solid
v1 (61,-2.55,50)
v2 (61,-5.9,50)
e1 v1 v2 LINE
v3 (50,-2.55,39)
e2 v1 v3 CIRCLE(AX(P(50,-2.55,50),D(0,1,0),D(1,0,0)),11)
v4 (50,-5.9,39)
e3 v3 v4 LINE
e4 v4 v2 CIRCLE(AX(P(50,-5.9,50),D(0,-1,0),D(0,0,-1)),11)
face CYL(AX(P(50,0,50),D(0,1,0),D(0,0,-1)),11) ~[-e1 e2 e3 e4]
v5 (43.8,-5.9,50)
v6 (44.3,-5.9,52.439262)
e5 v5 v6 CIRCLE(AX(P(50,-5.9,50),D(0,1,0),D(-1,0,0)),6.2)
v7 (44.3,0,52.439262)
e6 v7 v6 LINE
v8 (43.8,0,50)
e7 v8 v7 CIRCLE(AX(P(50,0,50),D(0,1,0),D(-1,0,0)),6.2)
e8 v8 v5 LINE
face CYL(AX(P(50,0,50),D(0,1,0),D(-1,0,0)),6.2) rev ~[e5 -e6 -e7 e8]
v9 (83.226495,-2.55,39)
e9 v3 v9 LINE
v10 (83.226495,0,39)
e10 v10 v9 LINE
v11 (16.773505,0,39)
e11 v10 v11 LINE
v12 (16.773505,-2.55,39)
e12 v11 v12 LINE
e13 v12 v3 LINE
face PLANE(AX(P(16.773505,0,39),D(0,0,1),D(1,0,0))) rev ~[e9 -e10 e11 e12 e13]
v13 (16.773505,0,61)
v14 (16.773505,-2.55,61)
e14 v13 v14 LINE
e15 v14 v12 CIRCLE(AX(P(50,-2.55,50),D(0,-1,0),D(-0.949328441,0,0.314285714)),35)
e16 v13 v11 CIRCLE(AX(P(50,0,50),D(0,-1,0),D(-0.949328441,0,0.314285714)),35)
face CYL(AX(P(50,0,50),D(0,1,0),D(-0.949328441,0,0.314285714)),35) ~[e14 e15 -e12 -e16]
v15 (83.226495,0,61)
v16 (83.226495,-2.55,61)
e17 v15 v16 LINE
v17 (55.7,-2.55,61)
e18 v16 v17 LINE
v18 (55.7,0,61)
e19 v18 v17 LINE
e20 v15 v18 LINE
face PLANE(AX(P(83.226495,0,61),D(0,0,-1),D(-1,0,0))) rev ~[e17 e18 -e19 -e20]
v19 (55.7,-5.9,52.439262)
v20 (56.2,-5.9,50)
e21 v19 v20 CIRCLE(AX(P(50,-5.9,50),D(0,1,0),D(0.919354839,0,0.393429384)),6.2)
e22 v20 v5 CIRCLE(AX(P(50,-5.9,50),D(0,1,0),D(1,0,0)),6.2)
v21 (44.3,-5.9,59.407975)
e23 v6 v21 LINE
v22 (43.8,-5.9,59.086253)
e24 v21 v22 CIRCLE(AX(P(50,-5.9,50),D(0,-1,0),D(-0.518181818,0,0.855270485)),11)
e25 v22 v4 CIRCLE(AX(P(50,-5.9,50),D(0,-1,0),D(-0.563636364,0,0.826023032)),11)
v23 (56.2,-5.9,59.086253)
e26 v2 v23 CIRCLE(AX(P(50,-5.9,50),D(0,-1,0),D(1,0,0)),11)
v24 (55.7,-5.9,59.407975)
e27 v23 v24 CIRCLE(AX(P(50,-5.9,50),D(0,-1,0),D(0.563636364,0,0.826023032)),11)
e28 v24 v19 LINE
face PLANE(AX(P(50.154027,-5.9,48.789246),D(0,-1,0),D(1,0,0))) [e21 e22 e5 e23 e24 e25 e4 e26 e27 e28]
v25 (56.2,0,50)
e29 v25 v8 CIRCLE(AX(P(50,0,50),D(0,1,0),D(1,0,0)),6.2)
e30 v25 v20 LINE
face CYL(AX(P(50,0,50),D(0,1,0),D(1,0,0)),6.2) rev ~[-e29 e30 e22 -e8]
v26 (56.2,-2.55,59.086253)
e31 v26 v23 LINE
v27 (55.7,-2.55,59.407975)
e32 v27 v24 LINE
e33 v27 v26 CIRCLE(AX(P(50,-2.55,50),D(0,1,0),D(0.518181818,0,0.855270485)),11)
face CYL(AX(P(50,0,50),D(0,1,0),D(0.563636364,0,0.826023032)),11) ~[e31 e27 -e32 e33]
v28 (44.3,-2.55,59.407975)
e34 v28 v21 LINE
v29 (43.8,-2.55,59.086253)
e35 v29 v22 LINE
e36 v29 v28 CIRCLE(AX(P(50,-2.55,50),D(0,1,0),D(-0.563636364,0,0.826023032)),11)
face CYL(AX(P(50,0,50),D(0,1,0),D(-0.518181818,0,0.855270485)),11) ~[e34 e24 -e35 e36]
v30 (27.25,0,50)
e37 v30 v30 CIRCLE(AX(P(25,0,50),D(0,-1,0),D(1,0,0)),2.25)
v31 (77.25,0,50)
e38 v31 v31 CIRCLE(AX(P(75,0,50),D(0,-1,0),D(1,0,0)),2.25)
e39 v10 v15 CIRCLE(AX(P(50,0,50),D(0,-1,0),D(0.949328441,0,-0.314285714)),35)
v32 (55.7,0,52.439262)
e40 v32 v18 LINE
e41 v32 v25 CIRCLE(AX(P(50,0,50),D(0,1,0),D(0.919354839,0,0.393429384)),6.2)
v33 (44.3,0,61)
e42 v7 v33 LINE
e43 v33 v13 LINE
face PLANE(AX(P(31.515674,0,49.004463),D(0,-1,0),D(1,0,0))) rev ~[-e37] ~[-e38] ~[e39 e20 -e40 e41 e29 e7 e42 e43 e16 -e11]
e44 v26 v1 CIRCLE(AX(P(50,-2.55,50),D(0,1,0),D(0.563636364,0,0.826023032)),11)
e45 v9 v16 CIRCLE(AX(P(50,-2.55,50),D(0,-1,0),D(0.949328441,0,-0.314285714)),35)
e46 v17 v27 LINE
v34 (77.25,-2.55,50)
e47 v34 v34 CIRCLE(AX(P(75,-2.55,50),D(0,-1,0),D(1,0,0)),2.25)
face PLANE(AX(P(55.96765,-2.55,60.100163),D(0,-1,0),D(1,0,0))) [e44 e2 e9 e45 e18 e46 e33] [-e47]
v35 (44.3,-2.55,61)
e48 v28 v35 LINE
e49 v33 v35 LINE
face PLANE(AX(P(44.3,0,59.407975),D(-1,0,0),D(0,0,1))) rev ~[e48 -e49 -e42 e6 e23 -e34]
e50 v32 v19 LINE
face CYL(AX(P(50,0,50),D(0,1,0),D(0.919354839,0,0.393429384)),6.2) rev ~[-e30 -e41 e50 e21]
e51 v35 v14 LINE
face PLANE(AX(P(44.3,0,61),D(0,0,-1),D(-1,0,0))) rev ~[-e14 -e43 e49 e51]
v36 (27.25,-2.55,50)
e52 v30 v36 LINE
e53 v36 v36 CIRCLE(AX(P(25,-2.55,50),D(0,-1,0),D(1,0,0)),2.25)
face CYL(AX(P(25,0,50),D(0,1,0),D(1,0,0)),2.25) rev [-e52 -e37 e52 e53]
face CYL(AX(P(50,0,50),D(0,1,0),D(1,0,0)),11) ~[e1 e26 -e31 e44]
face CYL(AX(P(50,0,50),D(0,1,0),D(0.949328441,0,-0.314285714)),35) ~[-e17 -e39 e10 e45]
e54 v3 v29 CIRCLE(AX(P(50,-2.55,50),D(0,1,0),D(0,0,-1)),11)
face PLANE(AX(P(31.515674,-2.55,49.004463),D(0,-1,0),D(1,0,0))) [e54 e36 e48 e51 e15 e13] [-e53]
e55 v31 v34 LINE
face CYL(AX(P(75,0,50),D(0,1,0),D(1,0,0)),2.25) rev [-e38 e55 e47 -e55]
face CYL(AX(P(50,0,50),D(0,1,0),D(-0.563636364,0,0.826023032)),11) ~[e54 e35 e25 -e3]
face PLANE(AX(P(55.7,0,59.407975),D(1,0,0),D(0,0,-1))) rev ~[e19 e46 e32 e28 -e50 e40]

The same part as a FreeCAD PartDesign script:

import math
import FreeCAD as App
import Part
import Sketcher

V = App.Vector
Q = App.Units.Quantity

doc = App.newDocument("Part")
body = doc.addObject("PartDesign::Body", "Body")

# Sketch on XZ plane
sketch1 = doc.addObject("Sketcher::SketchObject", "Sketch")
body.addObject(sketch1)
sketch1.AttachmentSupport = (doc.XZ_Plane, [""])
sketch1.MapMode = "FlatFace"
sketch1.addGeometry([
    Part.ArcOfCircle(Part.Circle(V(50, 50, 0), V(0, 0, 1), 6.2), math.radians(180), math.radians(360)),  # 0
    Part.ArcOfCircle(Part.Circle(V(50, 50, 0), V(0, 0, 1), 6.2), math.radians(157), math.radians(180)),  # 1
    Part.LineSegment(V(44.3, 52.4, 0), V(44.3, 59.4, 0)),  # 2
    Part.ArcOfCircle(Part.Circle(V(50, 50, 0), V(0, 0, 1), 11), math.radians(121.21), math.radians(124.31)),  # 3
    Part.ArcOfCircle(Part.Circle(V(50, 50, 0), V(0, 0, 1), 11), math.radians(124), math.radians(270)),  # 4
    Part.ArcOfCircle(Part.Circle(V(50, 50, 0), V(0, 0, 1), 11), math.radians(-90), math.radians(0)),  # 5
    Part.ArcOfCircle(Part.Circle(V(50, 50, 0), V(0, 0, 1), 11), math.radians(0), math.radians(56)),  # 6
    Part.ArcOfCircle(Part.Circle(V(50, 50, 0), V(0, 0, 1), 11), math.radians(55.69), math.radians(58.79)),  # 7
    Part.LineSegment(V(55.7, 59.4, 0), V(55.7, 52.4, 0)),  # 8
    Part.ArcOfCircle(Part.Circle(V(50, 50, 0), V(0, 0, 1), 6.2), math.radians(0), math.radians(23)),  # 9
], False)
sketch1.addConstraint([
    Sketcher.Constraint("Tangent", 0, 1, 1, 2),
    Sketcher.Constraint("Coincident", 1, 1, 2, 1),
    Sketcher.Constraint("Coincident", 2, 2, 3, 1),
    Sketcher.Constraint("Tangent", 3, 2, 4, 1),
    Sketcher.Constraint("Tangent", 4, 2, 5, 1),
    Sketcher.Constraint("Tangent", 5, 2, 6, 1),
    Sketcher.Constraint("Tangent", 6, 2, 7, 1),
    Sketcher.Constraint("Coincident", 7, 2, 8, 1),
    Sketcher.Constraint("Coincident", 8, 2, 9, 2),
    Sketcher.Constraint("Tangent", 9, 1, 0, 2),
    Sketcher.Constraint("Vertical", 2),
    Sketcher.Constraint("Vertical", 8),
    Sketcher.Constraint("Coincident", 3, 3, 0, 3),
    Sketcher.Constraint("Coincident", 5, 3, 0, 3),
    Sketcher.Constraint("Coincident", 7, 3, 0, 3),
    Sketcher.Constraint("Equal", 0, 1),
    Sketcher.Constraint("Equal", 1, 9),
    Sketcher.Constraint("Horizontal", 9, 3, 0, 1),
    Sketcher.Constraint("Horizontal", 0, 1, 5, 2),
    Sketcher.Constraint("Horizontal", 3, 2, 6, 2),
    Sketcher.Constraint("Horizontal", 2, 2, 7, 2),
    Sketcher.Constraint("Horizontal", 5, 2, 9, 1),
    Sketcher.Constraint("Vertical", 0, 1, 3, 2),
    Sketcher.Constraint("Vertical", 9, 3, 4, 2),
    Sketcher.Constraint("Radius", 3, Q("11 mm")),
    Sketcher.Constraint("Radius", 0, Q("6.2 mm")),
    Sketcher.Constraint("DistanceX", -1, 1, 0, 3, Q("50 mm")),
    Sketcher.Constraint("DistanceY", -1, 1, 0, 3, Q("50 mm")),
    Sketcher.Constraint("DistanceX", -1, 1, 1, 1, Q("44.3 mm")),
])
pad1 = doc.addObject("PartDesign::Pad", "Pad")
body.addObject(pad1)
pad1.Profile = sketch1
pad1.Length = 5.9

# Sketch on XZ plane
sketch2 = doc.addObject("Sketcher::SketchObject", "Sketch001")
body.addObject(sketch2)
sketch2.AttachmentSupport = (doc.XZ_Plane, [""])
sketch2.MapMode = "FlatFace"
sketch2.addGeometry([
    Part.ArcOfCircle(Part.Circle(V(50, 50, 0), V(0, 0, 1), 11), math.radians(124), math.radians(270)),  # 0
    Part.ArcOfCircle(Part.Circle(V(50, 50, 0), V(0, 0, 1), 11), math.radians(121.21), math.radians(124.31)),  # 1
    Part.LineSegment(V(44.3, 59.4, 0), V(44.3, 61, 0)),  # 2
    Part.LineSegment(V(44.3, 61, 0), V(16.8, 61, 0)),  # 3
    Part.ArcOfCircle(Part.Circle(V(50, 50, 0), V(0, 0, 1), 35), math.radians(162), math.radians(198)),  # 4
    Part.LineSegment(V(16.8, 39, 0), V(50, 39, 0)),  # 5
    Part.Circle(V(25, 50, 0), V(0, 0, 1), 2.2),  # 6
    Part.ArcOfCircle(Part.Circle(V(50, 50, 0), V(0, 0, 1), 11), math.radians(55.69), math.radians(58.79)),  # 7
    Part.ArcOfCircle(Part.Circle(V(50, 50, 0), V(0, 0, 1), 11), math.radians(0), math.radians(56)),  # 8
    Part.ArcOfCircle(Part.Circle(V(50, 50, 0), V(0, 0, 1), 11), math.radians(-90), math.radians(0)),  # 9
    Part.LineSegment(V(50, 39, 0), V(83.2, 39, 0)),  # 10
    Part.ArcOfCircle(Part.Circle(V(50, 50, 0), V(0, 0, 1), 35), math.radians(-18), math.radians(18)),  # 11
    Part.LineSegment(V(83.2, 61, 0), V(55.7, 61, 0)),  # 12
    Part.LineSegment(V(55.7, 61, 0), V(55.7, 59.4, 0)),  # 13
    Part.Circle(V(75, 50, 0), V(0, 0, 1), 2.2),  # 14
], False)
sketch2.addConstraint([
    Sketcher.Constraint("Tangent", 0, 1, 1, 2),
    Sketcher.Constraint("Coincident", 1, 1, 2, 1),
    Sketcher.Constraint("Coincident", 2, 2, 3, 1),
    Sketcher.Constraint("Coincident", 3, 2, 4, 1),
    Sketcher.Constraint("Coincident", 4, 2, 5, 1),
    Sketcher.Constraint("Tangent", 5, 2, 0, 2),
    Sketcher.Constraint("Tangent", 7, 1, 8, 2),
    Sketcher.Constraint("Tangent", 8, 1, 9, 2),
    Sketcher.Constraint("Tangent", 9, 1, 10, 1),
    Sketcher.Constraint("Coincident", 10, 2, 11, 1),
    Sketcher.Constraint("Coincident", 11, 2, 12, 1),
    Sketcher.Constraint("Coincident", 12, 2, 13, 1),
    Sketcher.Constraint("Coincident", 13, 2, 7, 2),
    Sketcher.Constraint("Vertical", 2),
    Sketcher.Constraint("Horizontal", 3),
    Sketcher.Constraint("Horizontal", 5),
    Sketcher.Constraint("Horizontal", 10),
    Sketcher.Constraint("Horizontal", 12),
    Sketcher.Constraint("Vertical", 13),
    Sketcher.Constraint("Coincident", 4, 3, 0, 3),
    Sketcher.Constraint("Coincident", 7, 3, 0, 3),
    Sketcher.Constraint("Coincident", 9, 3, 0, 3),
    Sketcher.Constraint("Coincident", 11, 3, 0, 3),
    Sketcher.Constraint("Equal", 0, 1),
    Sketcher.Constraint("Equal", 1, 7),
    Sketcher.Constraint("Equal", 4, 11),
    Sketcher.Constraint("Equal", 6, 14),
    Sketcher.Constraint("Horizontal", 4, 3, 6, 3),
    Sketcher.Constraint("Horizontal", 11, 3, 14, 3),
    Sketcher.Constraint("Horizontal", 0, 1, 7, 1),
    Sketcher.Constraint("Horizontal", 14, 3, 8, 1),
    Sketcher.Constraint("Horizontal", 3, 2, 11, 2),
    Sketcher.Constraint("Horizontal", 1, 1, 13, 2),
    Sketcher.Constraint("Vertical", 3, 2, 4, 2),
    Sketcher.Constraint("Radius", 0, Q("11 mm")),
    Sketcher.Constraint("Radius", 4, Q("35 mm")),
    Sketcher.Constraint("Diameter", 6, Q("4.5 mm")),
    Sketcher.Constraint("DistanceX", -1, 1, 0, 3, Q("50 mm")),
    Sketcher.Constraint("DistanceY", -1, 1, 0, 3, Q("50 mm")),
    Sketcher.Constraint("DistanceX", -1, 1, 6, 3, Q("25 mm")),
    Sketcher.Constraint("DistanceX", -1, 1, 14, 3, Q("75 mm")),
    Sketcher.Constraint("DistanceX", -1, 1, 0, 1, Q("43.8 mm")),
    Sketcher.Constraint("DistanceX", -1, 1, 1, 1, Q("44.3 mm")),
])
pad2 = doc.addObject("PartDesign::Pad", "Pad001")
body.addObject(pad2)
pad2.Profile = sketch2
pad2.Length = 2.55

doc.recompute()
